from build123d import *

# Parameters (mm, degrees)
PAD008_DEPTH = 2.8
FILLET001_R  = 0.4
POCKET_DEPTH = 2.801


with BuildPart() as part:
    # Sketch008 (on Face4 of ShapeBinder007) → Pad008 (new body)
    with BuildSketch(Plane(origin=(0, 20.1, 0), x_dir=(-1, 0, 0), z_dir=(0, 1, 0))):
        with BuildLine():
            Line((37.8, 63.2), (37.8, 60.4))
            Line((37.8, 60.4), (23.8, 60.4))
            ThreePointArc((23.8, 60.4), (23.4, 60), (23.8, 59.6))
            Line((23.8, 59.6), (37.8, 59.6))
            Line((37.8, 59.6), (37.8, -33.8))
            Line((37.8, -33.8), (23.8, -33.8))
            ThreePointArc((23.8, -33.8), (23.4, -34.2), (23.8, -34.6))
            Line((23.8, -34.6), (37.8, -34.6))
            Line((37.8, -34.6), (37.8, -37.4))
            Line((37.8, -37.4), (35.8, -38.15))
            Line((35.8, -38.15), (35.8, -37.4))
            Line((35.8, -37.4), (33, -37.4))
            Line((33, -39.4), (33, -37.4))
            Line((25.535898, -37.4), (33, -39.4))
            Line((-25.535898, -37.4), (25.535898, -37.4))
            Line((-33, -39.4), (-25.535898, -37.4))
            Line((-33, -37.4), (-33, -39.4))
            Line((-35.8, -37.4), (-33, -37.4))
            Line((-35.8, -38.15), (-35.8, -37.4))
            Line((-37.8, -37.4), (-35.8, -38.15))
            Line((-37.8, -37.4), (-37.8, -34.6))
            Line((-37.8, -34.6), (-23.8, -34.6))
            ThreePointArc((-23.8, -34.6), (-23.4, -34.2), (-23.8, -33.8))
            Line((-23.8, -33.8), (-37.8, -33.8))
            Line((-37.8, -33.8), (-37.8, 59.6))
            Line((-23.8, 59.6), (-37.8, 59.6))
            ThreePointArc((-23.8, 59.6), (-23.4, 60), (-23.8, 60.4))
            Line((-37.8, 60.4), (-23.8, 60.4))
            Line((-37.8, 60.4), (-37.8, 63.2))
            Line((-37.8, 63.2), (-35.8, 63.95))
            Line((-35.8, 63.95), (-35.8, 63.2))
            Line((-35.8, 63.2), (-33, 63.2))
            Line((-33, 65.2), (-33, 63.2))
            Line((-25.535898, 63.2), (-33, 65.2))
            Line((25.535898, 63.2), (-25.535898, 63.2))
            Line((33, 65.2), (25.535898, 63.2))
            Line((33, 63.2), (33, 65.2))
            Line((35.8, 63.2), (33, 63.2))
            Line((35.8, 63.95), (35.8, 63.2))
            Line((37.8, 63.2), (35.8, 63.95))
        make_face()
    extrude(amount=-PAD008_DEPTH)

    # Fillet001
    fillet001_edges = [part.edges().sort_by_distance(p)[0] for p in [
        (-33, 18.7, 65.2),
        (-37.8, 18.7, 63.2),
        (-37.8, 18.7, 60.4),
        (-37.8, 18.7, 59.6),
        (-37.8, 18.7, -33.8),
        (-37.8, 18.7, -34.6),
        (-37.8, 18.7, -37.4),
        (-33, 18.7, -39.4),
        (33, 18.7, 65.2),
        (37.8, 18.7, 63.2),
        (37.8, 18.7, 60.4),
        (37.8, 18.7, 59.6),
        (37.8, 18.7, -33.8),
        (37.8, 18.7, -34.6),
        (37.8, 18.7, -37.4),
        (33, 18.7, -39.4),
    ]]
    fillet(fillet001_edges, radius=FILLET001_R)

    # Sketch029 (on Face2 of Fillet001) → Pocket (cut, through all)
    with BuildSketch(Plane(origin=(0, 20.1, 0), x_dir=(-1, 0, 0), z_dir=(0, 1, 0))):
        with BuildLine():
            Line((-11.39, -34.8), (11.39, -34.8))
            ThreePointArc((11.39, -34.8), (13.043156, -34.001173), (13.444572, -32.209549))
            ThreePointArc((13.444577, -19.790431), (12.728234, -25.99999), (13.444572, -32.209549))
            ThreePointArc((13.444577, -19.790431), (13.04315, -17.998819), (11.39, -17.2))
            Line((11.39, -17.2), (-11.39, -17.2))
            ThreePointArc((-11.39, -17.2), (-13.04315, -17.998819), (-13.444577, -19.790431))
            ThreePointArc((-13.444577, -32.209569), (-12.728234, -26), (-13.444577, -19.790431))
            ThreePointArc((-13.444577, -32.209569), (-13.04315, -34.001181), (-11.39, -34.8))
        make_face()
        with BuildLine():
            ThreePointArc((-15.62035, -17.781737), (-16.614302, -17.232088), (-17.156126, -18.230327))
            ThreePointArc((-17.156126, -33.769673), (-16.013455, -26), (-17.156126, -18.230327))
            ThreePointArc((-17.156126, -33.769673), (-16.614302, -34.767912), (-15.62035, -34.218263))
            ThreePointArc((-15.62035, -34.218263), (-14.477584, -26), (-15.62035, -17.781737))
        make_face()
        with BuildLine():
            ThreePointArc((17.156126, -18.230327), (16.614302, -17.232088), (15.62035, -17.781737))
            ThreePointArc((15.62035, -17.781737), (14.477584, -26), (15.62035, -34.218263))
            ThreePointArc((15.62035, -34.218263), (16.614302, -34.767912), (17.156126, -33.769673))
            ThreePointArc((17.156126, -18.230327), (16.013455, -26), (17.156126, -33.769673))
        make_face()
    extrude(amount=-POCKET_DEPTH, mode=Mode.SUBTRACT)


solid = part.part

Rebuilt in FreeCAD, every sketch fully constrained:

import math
import FreeCAD as App
import Part
import Sketcher
from FreeCAD import Vector
Q = App.Units.Quantity


def edges_at(feature, points):
    """Names of the edges that pass closest to the given points."""
    edges = feature.Shape.Edges
    near = lambda p: min(range(len(edges)), key=lambda i: edges[i].distToShape(Part.Vertex(*p))[0])
    return sorted({f"Edge{near(p) + 1}" for p in points})

doc = App.newDocument("Part")
body = doc.addObject("PartDesign::Body", "Body")

# Sketch on XZ plane
sketch1 = body.newObject("Sketcher::SketchObject", "Sketch")
sketch1.AttachmentSupport = (doc.getObject("XZ_Plane"), [""])
sketch1.MapMode = "FlatFace"
sketch1.AttachmentOffset = App.Placement(Vector(0, 0, -20.1), App.Rotation())
sketch1.addGeometry([
    Part.LineSegment(Vector(-37.8, 60.4, 0), Vector(-37.8, 63.2, 0)),  # 0
    Part.LineSegment(Vector(-37.8, 63.2, 0), Vector(-35.8, 63.95, 0)),  # 1
    Part.LineSegment(Vector(-35.8, 63.95, 0), Vector(-35.8, 63.2, 0)),  # 2
    Part.LineSegment(Vector(-35.8, 63.2, 0), Vector(-33, 63.2, 0)),  # 3
    Part.LineSegment(Vector(-33, 63.2, 0), Vector(-33, 65.2, 0)),  # 4
    Part.LineSegment(Vector(-33, 65.2, 0), Vector(-25.535898, 63.2, 0)),  # 5
    Part.LineSegment(Vector(-25.535898, 63.2, 0), Vector(25.535898, 63.2, 0)),  # 6
    Part.LineSegment(Vector(25.535898, 63.2, 0), Vector(33, 65.2, 0)),  # 7
    Part.LineSegment(Vector(33, 65.2, 0), Vector(33, 63.2, 0)),  # 8
    Part.LineSegment(Vector(33, 63.2, 0), Vector(35.8, 63.2, 0)),  # 9
    Part.LineSegment(Vector(35.8, 63.2, 0), Vector(35.8, 63.95, 0)),  # 10
    Part.LineSegment(Vector(35.8, 63.95, 0), Vector(37.8, 63.2, 0)),  # 11
    Part.LineSegment(Vector(37.8, 63.2, 0), Vector(37.8, 60.4, 0)),  # 12
    Part.LineSegment(Vector(37.8, 60.4, 0), Vector(23.8, 60.4, 0)),  # 13
    Part.ArcOfCircle(Part.Circle(Vector(23.8, 60, 0), Vector(0, 0, 1), 0.4), math.radians(90), math.radians(270)),  # 14
    Part.LineSegment(Vector(23.8, 59.6, 0), Vector(37.8, 59.6, 0)),  # 15
    Part.LineSegment(Vector(37.8, 59.6, 0), Vector(37.8, -33.8, 0)),  # 16
    Part.LineSegment(Vector(37.8, -33.8, 0), Vector(23.8, -33.8, 0)),  # 17
    Part.ArcOfCircle(Part.Circle(Vector(23.8, -34.2, 0), Vector(0, 0, 1), 0.4), math.radians(90), math.radians(270)),  # 18
    Part.LineSegment(Vector(23.8, -34.6, 0), Vector(37.8, -34.6, 0)),  # 19
    Part.LineSegment(Vector(37.8, -34.6, 0), Vector(37.8, -37.4, 0)),  # 20
    Part.LineSegment(Vector(37.8, -37.4, 0), Vector(35.8, -38.15, 0)),  # 21
    Part.LineSegment(Vector(35.8, -38.15, 0), Vector(35.8, -37.4, 0)),  # 22
    Part.LineSegment(Vector(35.8, -37.4, 0), Vector(33, -37.4, 0)),  # 23
    Part.LineSegment(Vector(33, -37.4, 0), Vector(33, -39.4, 0)),  # 24
    Part.LineSegment(Vector(33, -39.4, 0), Vector(25.535898, -37.4, 0)),  # 25
    Part.LineSegment(Vector(25.535898, -37.4, 0), Vector(-25.535898, -37.4, 0)),  # 26
    Part.LineSegment(Vector(-25.535898, -37.4, 0), Vector(-33, -39.4, 0)),  # 27
    Part.LineSegment(Vector(-33, -39.4, 0), Vector(-33, -37.4, 0)),  # 28
    Part.LineSegment(Vector(-33, -37.4, 0), Vector(-35.8, -37.4, 0)),  # 29
    Part.LineSegment(Vector(-35.8, -37.4, 0), Vector(-35.8, -38.15, 0)),  # 30
    Part.LineSegment(Vector(-35.8, -38.15, 0), Vector(-37.8, -37.4, 0)),  # 31
    Part.LineSegment(Vector(-37.8, -37.4, 0), Vector(-37.8, -34.6, 0)),  # 32
    Part.LineSegment(Vector(-37.8, -34.6, 0), Vector(-23.8, -34.6, 0)),  # 33
    Part.ArcOfCircle(Part.Circle(Vector(-23.8, -34.2, 0), Vector(0, 0, 1), 0.4), math.radians(-90), math.radians(90)),  # 34
    Part.LineSegment(Vector(-23.8, -33.8, 0), Vector(-37.8, -33.8, 0)),  # 35
    Part.LineSegment(Vector(-37.8, -33.8, 0), Vector(-37.8, 59.6, 0)),  # 36
    Part.LineSegment(Vector(-37.8, 59.6, 0), Vector(-23.8, 59.6, 0)),  # 37
    Part.ArcOfCircle(Part.Circle(Vector(-23.8, 60, 0), Vector(0, 0, 1), 0.4), math.radians(-90), math.radians(90)),  # 38
    Part.LineSegment(Vector(-23.8, 60.4, 0), Vector(-37.8, 60.4, 0)),  # 39
], False)
sketch1.addConstraint([
    Sketcher.Constraint("Coincident", 0, 2, 1, 1),
    Sketcher.Constraint("Coincident", 1, 2, 2, 1),
    Sketcher.Constraint("Coincident", 2, 2, 3, 1),
    Sketcher.Constraint("Coincident", 3, 2, 4, 1),
    Sketcher.Constraint("Coincident", 4, 2, 5, 1),
    Sketcher.Constraint("Coincident", 5, 2, 6, 1),
    Sketcher.Constraint("Coincident", 6, 2, 7, 1),
    Sketcher.Constraint("Coincident", 7, 2, 8, 1),
    Sketcher.Constraint("Coincident", 8, 2, 9, 1),
    Sketcher.Constraint("Coincident", 9, 2, 10, 1),
    Sketcher.Constraint("Coincident", 10, 2, 11, 1),
    Sketcher.Constraint("Coincident", 11, 2, 12, 1),
    Sketcher.Constraint("Coincident", 12, 2, 13, 1),
    Sketcher.Constraint("Tangent", 13, 2, 14, 1),
    Sketcher.Constraint("Tangent", 14, 2, 15, 1),
    Sketcher.Constraint("Coincident", 15, 2, 16, 1),
    Sketcher.Constraint("Coincident", 16, 2, 17, 1),
    Sketcher.Constraint("Tangent", 17, 2, 18, 1),
    Sketcher.Constraint("Tangent", 18, 2, 19, 1),
    Sketcher.Constraint("Coincident", 19, 2, 20, 1),
    Sketcher.Constraint("Coincident", 20, 2, 21, 1),
    Sketcher.Constraint("Coincident", 21, 2, 22, 1),
    Sketcher.Constraint("Coincident", 22, 2, 23, 1),
    Sketcher.Constraint("Coincident", 23, 2, 24, 1),
    Sketcher.Constraint("Coincident", 24, 2, 25, 1),
    Sketcher.Constraint("Coincident", 25, 2, 26, 1),
    Sketcher.Constraint("Coincident", 26, 2, 27, 1),
    Sketcher.Constraint("Coincident", 27, 2, 28, 1),
    Sketcher.Constraint("Coincident", 28, 2, 29, 1),
    Sketcher.Constraint("Coincident", 29, 2, 30, 1),
    Sketcher.Constraint("Coincident", 30, 2, 31, 1),
    Sketcher.Constraint("Coincident", 31, 2, 32, 1),
    Sketcher.Constraint("Coincident", 32, 2, 33, 1),
    Sketcher.Constraint("Tangent", 33, 2, 34, 1),
    Sketcher.Constraint("Tangent", 34, 2, 35, 1),
    Sketcher.Constraint("Coincident", 35, 2, 36, 1),
    Sketcher.Constraint("Coincident", 36, 2, 37, 1),
    Sketcher.Constraint("Tangent", 37, 2, 38, 1),
    Sketcher.Constraint("Tangent", 38, 2, 39, 1),
    Sketcher.Constraint("Coincident", 39, 2, 0, 1),
    Sketcher.Constraint("Vertical", 0),
    Sketcher.Constraint("Vertical", 2),
    Sketcher.Constraint("Horizontal", 3),
    Sketcher.Constraint("Vertical", 4),
    Sketcher.Constraint("Horizontal", 6),
    Sketcher.Constraint("Vertical", 8),
    Sketcher.Constraint("Horizontal", 9),
    Sketcher.Constraint("Vertical", 10),
    Sketcher.Constraint("Vertical", 12),
    Sketcher.Constraint("Horizontal", 13),
    Sketcher.Constraint("Horizontal", 15),
    Sketcher.Constraint("Vertical", 16),
    Sketcher.Constraint("Horizontal", 17),
    Sketcher.Constraint("Horizontal", 19),
    Sketcher.Constraint("Vertical", 20),
    Sketcher.Constraint("Vertical", 22),
    Sketcher.Constraint("Horizontal", 23),
    Sketcher.Constraint("Vertical", 24),
    Sketcher.Constraint("Horizontal", 26),
    Sketcher.Constraint("Vertical", 28),
    Sketcher.Constraint("Horizontal", 29),
    Sketcher.Constraint("Vertical", 30),
    Sketcher.Constraint("Vertical", 32),
    Sketcher.Constraint("Horizontal", 33),
    Sketcher.Constraint("Horizontal", 35),
    Sketcher.Constraint("Vertical", 36),
    Sketcher.Constraint("Horizontal", 37),
    Sketcher.Constraint("Horizontal", 39),
    Sketcher.Constraint("Equal", 14, 18),
    Sketcher.Constraint("Equal", 18, 34),
    Sketcher.Constraint("Equal", 34, 38),
    Sketcher.Constraint("Symmetric", 18, 3, 34, 3, -2),
    Sketcher.Constraint("Symmetric", 14, 3, 38, 3, -2),
    Sketcher.Constraint("Symmetric", 4, 2, 7, 2, -2),
    Sketcher.Constraint("Symmetric", 2, 2, 9, 2, -2),
    Sketcher.Constraint("Symmetric", 0, 2, 11, 2, -2),
    Sketcher.Constraint("Symmetric", 24, 2, 27, 2, -2),
    Sketcher.Constraint("Symmetric", 22, 2, 29, 2, -2),
    Sketcher.Constraint("Symmetric", 20, 2, 31, 2, -2),
    Sketcher.Constraint("Parallel", 1, 21),
    Sketcher.Constraint("Parallel", 5, 25),
    Sketcher.Constraint("Parallel", 7, 27),
    Sketcher.Constraint("Parallel", 11, 31),
    Sketcher.Constraint("Horizontal", 0, 2, 2, 2),
    Sketcher.Constraint("Horizontal", 3, 2, 5, 2),
    Sketcher.Constraint("Horizontal", 1, 2, 10, 2),
    Sketcher.Constraint("Horizontal", 20, 2, 22, 2),
    Sketcher.Constraint("Horizontal", 23, 2, 25, 2),
    Sketcher.Constraint("Vertical", 14, 3, 18, 3),
    Sketcher.Constraint("Vertical", 12, 2, 15, 2),
    Sketcher.Constraint("Vertical", 16, 2, 19, 2),
    Sketcher.Constraint("Vertical", 10, 2, 21, 2),
    Sketcher.Constraint("Vertical", 8, 2, 23, 2),
    Sketcher.Constraint("Vertical", 6, 2, 25, 2),
    Sketcher.Constraint("Vertical", 5, 2, 26, 2),
    Sketcher.Constraint("Vertical", 32, 2, 35, 2),
    Sketcher.Constraint("Equal", 29, 0),
    Sketcher.Constraint("Equal", 12, 20),
    Sketcher.Constraint("Radius", 14, Q("0.4 mm")),
    Sketcher.Constraint("DistanceX", 13, 2, 13, 1, Q("14 mm")),
    Sketcher.Constraint("DistanceY", 4, 1, 4, 2, Q("2 mm")),
    Sketcher.Constraint("Angle", 5, Q("-14.999999 deg")),
    Sketcher.Constraint("DistanceX", 3, 1, 3, 2, Q("2.8 mm")),
    Sketcher.Constraint("DistanceY", 16, 2, 16, 1, Q("93.4 mm")),
    Sketcher.Constraint("DistanceY", -1, 1, 14, 3, Q("60 mm")),
    Sketcher.Constraint("DistanceX", 3, 2, -1, 1, Q("33 mm")),
    Sketcher.Constraint("DistanceX", 0, 2, 1, 2, Q("2 mm")),
    Sketcher.Constraint("DistanceY", 2, 2, 2, 1, Q("0.75 mm")),
])
pad1 = body.newObject("PartDesign::Pad", "Pad")
pad1.Profile = sketch1
pad1.Length = 2.8
doc.recompute()

fillet = body.newObject("PartDesign::Fillet", "Fillet")
fillet.Base = (pad1, edges_at(pad1, [
    (-33, 18.7, 65.2),
    (-37.8, 18.7, 63.2),
    (-37.8, 18.7, 60.4),
    (-37.8, 18.7, 59.6),
    (-37.8, 18.7, -33.8),
    (-37.8, 18.7, -34.6),
    (-37.8, 18.7, -37.4),
    (-33, 18.7, -39.4),
    (33, 18.7, 65.2),
    (37.8, 18.7, 63.2),
    (37.8, 18.7, 60.4),
    (37.8, 18.7, 59.6),
    (37.8, 18.7, -33.8),
    (37.8, 18.7, -34.6),
    (37.8, 18.7, -37.4),
    (33, 18.7, -39.4),
]))
fillet.Radius = 0.4

# Sketch on XZ plane
sketch2 = body.newObject("Sketcher::SketchObject", "Sketch001")
sketch2.AttachmentSupport = (doc.getObject("XZ_Plane"), [""])
sketch2.MapMode = "FlatFace"
sketch2.AttachmentOffset = App.Placement(Vector(0, 0, -20.1), App.Rotation())
sketch2.addGeometry([
    Part.LineSegment(Vector(11.39, -34.8, 0), Vector(-11.39, -34.8, 0)),  # 0
    Part.ArcOfCircle(Part.Circle(Vector(-11.39, -32.69, 0), Vector(0, 0, 1), 2.11), math.radians(166.83819), math.radians(269.999995)),  # 1
    Part.ArcOfCircle(Part.Circle(Vector(-40.000018, -26.000001, 0), Vector(0, 0, 1), 27.271784), math.radians(-13.161188), math.radians(13.161234)),  # 2
    Part.ArcOfCircle(Part.Circle(Vector(-11.39, -19.31, 0), Vector(0, 0, 1), 2.11), math.radians(89.999995), math.radians(193.161253)),  # 3
    Part.LineSegment(Vector(-11.39, -17.2, 0), Vector(11.39, -17.2, 0)),  # 4
    Part.ArcOfCircle(Part.Circle(Vector(11.39, -19.31, 0), Vector(0, 0, 1), 2.11), math.radians(-13.161253), math.radians(90.000005)),  # 5
    Part.ArcOfCircle(Part.Circle(Vector(40.000012, -26, 0), Vector(0, 0, 1), 27.271778), math.radians(166.838765), math.radians(193.161235)),  # 6
    Part.ArcOfCircle(Part.Circle(Vector(11.39, -32.69, 0), Vector(0, 0, 1), 2.11), math.radians(-90.000005), math.radians(13.161253)),  # 7
    Part.ArcOfCircle(Part.Circle(Vector(16.39, -18, 0), Vector(0, 0, 1), 0.8), math.radians(-16.732826), math.radians(164.167357)),  # 8
    Part.ArcOfCircle(Part.Circle(Vector(43.000013, -26, 0), Vector(0, 0, 1), 26.986558), math.radians(163.267188), math.radians(196.732812)),  # 9
    Part.ArcOfCircle(Part.Circle(Vector(16.39, -34, 0), Vector(0, 0, 1), 0.8), math.radians(-164.167357), math.radians(16.732826)),  # 10
    Part.ArcOfCircle(Part.Circle(Vector(44.600007, -26, 0), Vector(0, 0, 1), 30.122423), math.radians(164.167336), math.radians(195.832664)),  # 11
    Part.ArcOfCircle(Part.Circle(Vector(-16.39, -18, 0), Vector(0, 0, 1), 0.8), math.radians(15.832643), math.radians(196.732826)),  # 12
    Part.ArcOfCircle(Part.Circle(Vector(-44.600007, -26, 0), Vector(0, 0, 1), 30.122423), math.radians(-15.832664), math.radians(15.832664)),  # 13
    Part.ArcOfCircle(Part.Circle(Vector(-16.39, -34, 0), Vector(0, 0, 1), 0.8), math.radians(163.267174), math.radians(344.167357)),  # 14
    Part.ArcOfCircle(Part.Circle(Vector(-43.000013, -26, 0), Vector(0, 0, 1), 26.986558), math.radians(-16.732812), math.radians(16.732812)),  # 15
], False)
sketch2.addConstraint([
    Sketcher.Constraint("Tangent", 0, 2, 1, 2),
    Sketcher.Constraint("Coincident", 1, 1, 2, 1),
    Sketcher.Constraint("Tangent", 2, 2, 3, 2),
    Sketcher.Constraint("Tangent", 3, 1, 4, 1),
    Sketcher.Constraint("Tangent", 4, 2, 5, 2),
    Sketcher.Constraint("Tangent", 5, 1, 6, 1),
    Sketcher.Constraint("Tangent", 6, 2, 7, 2),
    Sketcher.Constraint("Tangent", 7, 1, 0, 1),
    Sketcher.Constraint("Tangent", 8, 1, 9, 1),
    Sketcher.Constraint("Tangent", 9, 2, 10, 2),
    Sketcher.Constraint("Tangent", 10, 1, 11, 2),
    Sketcher.Constraint("Tangent", 11, 1, 8, 2),
    Sketcher.Constraint("Tangent", 12, 1, 13, 2),
    Sketcher.Constraint("Tangent", 13, 1, 14, 2),
    Sketcher.Constraint("Tangent", 14, 1, 15, 1),
    Sketcher.Constraint("Tangent", 15, 2, 12, 2),
    Sketcher.Constraint("Horizontal", 0),
    Sketcher.Constraint("Horizontal", 4),
    Sketcher.Constraint("Equal", 1, 3),
    Sketcher.Constraint("Equal", 3, 5),
    Sketcher.Constraint("Equal", 5, 7),
    Sketcher.Constraint("Equal", 8, 10),
    Sketcher.Constraint("Equal", 10, 12),
    Sketcher.Constraint("Equal", 11, 13),
    Sketcher.Constraint("Equal", 12, 14),
    Sketcher.Constraint("Equal", 9, 15),
    Sketcher.Constraint("Symmetric", 2, 3, 6, 3, -2),
    Sketcher.Constraint("Symmetric", 8, 3, 12, 3, -2),
    Sketcher.Constraint("Symmetric", 10, 3, 14, 3, -2),
    Sketcher.Constraint("Horizontal", 6, 3, 9, 3),
    Sketcher.Constraint("Horizontal", 9, 3, 11, 3),
    Sketcher.Constraint("Vertical", 1, 3, 3, 3),
    Sketcher.Constraint("Radius", 8, Q("0.8 mm")),
    Sketcher.Constraint("Radius", 1, Q("2.11 mm")),
    Sketcher.Constraint("DistanceY", 2, 3, -1, 1, Q("26.000001 mm")),
    Sketcher.Constraint("DistanceY", 8, 3, -1, 1, Q("18 mm")),
    Sketcher.Constraint("DistanceX", 5, 3, 8, 3, Q("5 mm")),
    Sketcher.Constraint("DistanceX", 6, 3, 9, 3, Q("3.000002 mm")),
    Sketcher.Constraint("DistanceX", 12, 3, 3, 3, Q("5 mm")),
    Sketcher.Constraint("DistanceX", 0, 2, 0, 1, Q("22.78 mm")),
    Sketcher.Constraint("DistanceY", 0, 2, -1, 1, Q("34.8 mm")),
    Sketcher.Constraint("Radius", 9, Q("26.986558 mm")),
    Sketcher.Constraint("Radius", 11, Q("30.122423 mm")),
    Sketcher.Constraint("DistanceX", 1, 1, -1, 1, Q("13.444572 mm")),
])
pocket1 = body.newObject("PartDesign::Pocket", "Pocket")
pocket1.Profile = sketch2
pocket1.Type = "ThroughAll"
pocket1.Reversed = True

doc.recompute()
